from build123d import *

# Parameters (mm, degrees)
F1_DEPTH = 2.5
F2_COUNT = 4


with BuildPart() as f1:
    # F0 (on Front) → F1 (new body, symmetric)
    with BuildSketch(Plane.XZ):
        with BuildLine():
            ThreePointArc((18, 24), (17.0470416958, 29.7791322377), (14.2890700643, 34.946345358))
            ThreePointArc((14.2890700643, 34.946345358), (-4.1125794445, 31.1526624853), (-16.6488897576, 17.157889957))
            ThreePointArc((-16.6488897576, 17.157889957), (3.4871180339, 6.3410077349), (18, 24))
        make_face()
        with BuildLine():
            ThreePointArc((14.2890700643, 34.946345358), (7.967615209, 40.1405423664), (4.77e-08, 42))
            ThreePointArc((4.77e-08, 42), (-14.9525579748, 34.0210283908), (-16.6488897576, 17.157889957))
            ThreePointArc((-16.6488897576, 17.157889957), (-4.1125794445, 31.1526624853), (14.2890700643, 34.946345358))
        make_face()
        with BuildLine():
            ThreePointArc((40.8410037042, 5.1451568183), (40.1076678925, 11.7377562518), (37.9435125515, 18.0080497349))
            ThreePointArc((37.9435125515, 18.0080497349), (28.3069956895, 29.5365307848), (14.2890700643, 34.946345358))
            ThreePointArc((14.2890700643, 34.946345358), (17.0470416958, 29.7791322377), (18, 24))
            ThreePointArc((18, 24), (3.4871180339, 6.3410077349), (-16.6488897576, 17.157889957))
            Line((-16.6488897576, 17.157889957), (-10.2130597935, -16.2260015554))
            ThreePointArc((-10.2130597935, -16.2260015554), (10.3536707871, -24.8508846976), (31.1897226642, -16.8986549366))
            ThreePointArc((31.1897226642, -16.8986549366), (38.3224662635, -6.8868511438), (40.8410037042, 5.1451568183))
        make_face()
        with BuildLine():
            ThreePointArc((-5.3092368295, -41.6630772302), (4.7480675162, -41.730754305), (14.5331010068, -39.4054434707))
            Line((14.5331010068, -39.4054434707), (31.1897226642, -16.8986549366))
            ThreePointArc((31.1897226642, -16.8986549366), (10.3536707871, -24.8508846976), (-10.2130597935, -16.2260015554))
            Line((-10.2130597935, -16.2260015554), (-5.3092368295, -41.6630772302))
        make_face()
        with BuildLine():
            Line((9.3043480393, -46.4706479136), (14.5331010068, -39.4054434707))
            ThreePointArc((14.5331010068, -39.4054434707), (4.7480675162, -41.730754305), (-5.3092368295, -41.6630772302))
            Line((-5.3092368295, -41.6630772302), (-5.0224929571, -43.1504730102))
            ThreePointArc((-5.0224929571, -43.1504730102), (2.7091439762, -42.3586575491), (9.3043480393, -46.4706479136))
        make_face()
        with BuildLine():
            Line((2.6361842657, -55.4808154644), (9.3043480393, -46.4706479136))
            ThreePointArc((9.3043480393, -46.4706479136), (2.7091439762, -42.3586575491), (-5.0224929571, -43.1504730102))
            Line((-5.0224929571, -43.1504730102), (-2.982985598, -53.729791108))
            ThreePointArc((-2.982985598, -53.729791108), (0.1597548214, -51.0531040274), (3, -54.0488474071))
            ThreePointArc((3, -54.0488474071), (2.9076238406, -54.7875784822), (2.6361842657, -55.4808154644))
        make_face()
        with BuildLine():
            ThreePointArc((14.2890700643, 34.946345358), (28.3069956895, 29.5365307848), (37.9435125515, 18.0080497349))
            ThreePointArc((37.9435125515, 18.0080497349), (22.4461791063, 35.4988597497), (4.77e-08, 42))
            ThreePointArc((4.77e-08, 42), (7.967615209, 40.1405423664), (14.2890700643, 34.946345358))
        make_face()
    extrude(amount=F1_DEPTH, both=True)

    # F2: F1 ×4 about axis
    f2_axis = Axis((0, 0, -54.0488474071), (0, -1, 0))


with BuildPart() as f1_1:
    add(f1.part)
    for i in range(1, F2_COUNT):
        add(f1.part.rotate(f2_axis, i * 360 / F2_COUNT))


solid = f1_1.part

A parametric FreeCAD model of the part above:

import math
import FreeCAD as App
import Part
import Sketcher

V = App.Vector

doc = App.newDocument("Part")
params = doc.addObject("Spreadsheet::Sheet", "Params")
for row, (alias, value) in enumerate([
    ("sketch1_radius", "18 mm"),
    ("sketch1_radius2", "3 mm"),
    ("sketch1_radius3", "30 mm"),
    ("sketch1_radius4", "42 mm"),
    ("pad1_length", "5 mm"),
], start=1):
    params.set(f"A{row}", alias)
    params.set(f"B{row}", "=" + value)
    params.setAlias(f"B{row}", alias)

body = doc.addObject("PartDesign::Body", "Body")

sketch1 = doc.addObject("Sketcher::SketchObject", "Sketch")
body.addObject(sketch1)
sketch1.AttachmentSupport = (doc.XZ_Plane, [""])
sketch1.MapMode = "FlatFace"
sketch1.addGeometry(Part.ArcOfCircle(Part.Circle(V(0, 24, 0), V(0, 0, 1), 18), math.radians(90), math.radians(202)), False)
sketch1.addGeometry(Part.LineSegment(V(-16.6, 17.2, 0), V(-5.3, -41.7, 0)), False)
sketch1.addGeometry(Part.LineSegment(V(-5.3, -41.7, 0), V(-5, -43.2, 0)), False)
sketch1.addGeometry(Part.LineSegment(V(-5, -43.2, 0), V(-3, -53.7, 0)), False)
sketch1.addGeometry(Part.ArcOfCircle(Part.Circle(V(0, -54, 0), V(0, 0, 1), 3), math.radians(0), math.radians(174)), False)
sketch1.addGeometry(Part.ArcOfCircle(Part.Circle(V(0, -54, 0), V(0, 0, 1), 3), math.radians(-29), math.radians(0)), False)
sketch1.addGeometry(Part.LineSegment(V(2.6, -55.5, 0), V(9.3, -46.5, 0)), False)
sketch1.addGeometry(Part.LineSegment(V(9.3, -46.5, 0), V(14.5, -39.4, 0)), False)
sketch1.addGeometry(Part.LineSegment(V(14.5, -39.4, 0), V(31.2, -16.9, 0)), False)
sketch1.addGeometry(Part.ArcOfCircle(Part.Circle(V(10.8, 5.1, 0), V(0, 0, 1), 30), math.radians(-47), math.radians(25)), False)
sketch1.addGeometry(Part.ArcOfCircle(Part.Circle(V(0, 0, 0), V(0, 0, 1), 42), math.radians(25), math.radians(90)), False)
sketch1.addConstraint(Sketcher.Constraint("Coincident", 0, 2, 1, 1))
sketch1.addConstraint(Sketcher.Constraint("Coincident", 1, 2, 2, 1))
sketch1.addConstraint(Sketcher.Constraint("Coincident", 2, 2, 3, 1))
sketch1.addConstraint(Sketcher.Constraint("Coincident", 3, 2, 4, 2))
sketch1.addConstraint(Sketcher.Constraint("Tangent", 4, 1, 5, 2))
sketch1.addConstraint(Sketcher.Constraint("Coincident", 5, 1, 6, 1))
sketch1.addConstraint(Sketcher.Constraint("Coincident", 6, 2, 7, 1))
sketch1.addConstraint(Sketcher.Constraint("Coincident", 7, 2, 8, 1))
sketch1.addConstraint(Sketcher.Constraint("Coincident", 8, 2, 9, 1))
sketch1.addConstraint(Sketcher.Constraint("Tangent", 9, 2, 10, 1))
sketch1.addConstraint(Sketcher.Constraint("Tangent", 10, 2, 0, 1))
sketch1.addConstraint(Sketcher.Constraint("Coincident", 10, 3, -1, 1))
sketch1.addConstraint(Sketcher.Constraint("Equal", 4, 5))
sketch1.addConstraint(Sketcher.Constraint("PointOnObject", 0, 3, -2))
sketch1.addConstraint(Sketcher.Constraint("PointOnObject", 4, 3, -2))
sketch1.addConstraint(Sketcher.Constraint("Parallel", 1, 2))
sketch1.addConstraint(Sketcher.Constraint("Parallel", 2, 3))
sketch1.addConstraint(Sketcher.Constraint("Parallel", 6, 7))
sketch1.addConstraint(Sketcher.Constraint("Parallel", 7, 8))
sketch1.addConstraint(Sketcher.Constraint("Horizontal", 5, 3, 4, 1))
sketch1.addConstraint(Sketcher.Constraint("Radius", 0, 18.0))
sketch1.addConstraint(Sketcher.Constraint("Radius", 4, 3.0))
sketch1.addConstraint(Sketcher.Constraint("Radius", 9, 30.0))
sketch1.addConstraint(Sketcher.Constraint("Radius", 10, 42.0))
sketch1.addConstraint(Sketcher.Constraint("DistanceX", -1, 1, 7, 2, 14.533101))
sketch1.addConstraint(Sketcher.Constraint("DistanceY", 4, 1, 6, 2, 7.578199))
sketch1.addConstraint(Sketcher.Constraint("Distance", 1, 59.904039))
sketch1.addConstraint(Sketcher.Constraint("Distance", 6, 11.209261))
sketch1.addConstraint(Sketcher.Constraint("DistanceX", 0, 2, -1, 1, 16.64889))
sketch1.addConstraint(Sketcher.Constraint("DistanceY", 3, 2, -1, 1, 53.729791))
sketch1.addConstraint(Sketcher.Constraint("DistanceX", -1, 1, 6, 2, 9.304348))
sketch1.addConstraint(Sketcher.Constraint("DistanceY", -1, 1, 9, 2, 18.00805))
sketch1.addConstraint(Sketcher.Constraint("DistanceY", 5, 3, 1, 2, 12.38577))
sketch1.addConstraint(Sketcher.Constraint("DistanceY", 2, 2, 9, 3, 48.29563))
sketch1.setExpression("Constraints[20]", "Params.sketch1_radius")
sketch1.setExpression("Constraints[21]", "Params.sketch1_radius2")
sketch1.setExpression("Constraints[22]", "Params.sketch1_radius3")
sketch1.setExpression("Constraints[23]", "Params.sketch1_radius4")
pad1 = doc.addObject("PartDesign::Pad", "Pad")
body.addObject(pad1)
pad1.Profile = sketch1
pad1.setExpression("Length", "Params.pad1_length")
pad1.Midplane = True
body2 = doc.addObject("PartDesign::Body", "Body001")
doc.recompute()

body2.BaseFeature = body
doc.recompute()

body3 = doc.addObject("PartDesign::Body", "Body002")
body3.BaseFeature = body
body3.Placement = App.Placement(V(-54.048847, 0, -54.048847), App.Rotation(V(0, -1, 0), 90))
boolean = doc.addObject("PartDesign::Boolean", "Boolean")
body2.addObject(boolean)
boolean.Type = "Fuse"
boolean.addObjects([body3])
doc.recompute()

body4 = doc.addObject("PartDesign::Body", "Body003")
body4.BaseFeature = body
body4.Placement = App.Placement(V(0, 0, -108.097695), App.Rotation(V(0, -1, 0), 180))
boolean2 = doc.addObject("PartDesign::Boolean", "Boolean001")
body2.addObject(boolean2)
boolean2.Type = "Fuse"
boolean2.addObjects([body4])
doc.recompute()

body.Placement = App.Placement(V(54.048847, 0, -54.048847), App.Rotation(V(0, -1, 0), 270))
boolean3 = doc.addObject("PartDesign::Boolean", "Boolean002")
body2.addObject(boolean3)
boolean3.Type = "Fuse"
boolean3.addObjects([body])

doc.recompute()
